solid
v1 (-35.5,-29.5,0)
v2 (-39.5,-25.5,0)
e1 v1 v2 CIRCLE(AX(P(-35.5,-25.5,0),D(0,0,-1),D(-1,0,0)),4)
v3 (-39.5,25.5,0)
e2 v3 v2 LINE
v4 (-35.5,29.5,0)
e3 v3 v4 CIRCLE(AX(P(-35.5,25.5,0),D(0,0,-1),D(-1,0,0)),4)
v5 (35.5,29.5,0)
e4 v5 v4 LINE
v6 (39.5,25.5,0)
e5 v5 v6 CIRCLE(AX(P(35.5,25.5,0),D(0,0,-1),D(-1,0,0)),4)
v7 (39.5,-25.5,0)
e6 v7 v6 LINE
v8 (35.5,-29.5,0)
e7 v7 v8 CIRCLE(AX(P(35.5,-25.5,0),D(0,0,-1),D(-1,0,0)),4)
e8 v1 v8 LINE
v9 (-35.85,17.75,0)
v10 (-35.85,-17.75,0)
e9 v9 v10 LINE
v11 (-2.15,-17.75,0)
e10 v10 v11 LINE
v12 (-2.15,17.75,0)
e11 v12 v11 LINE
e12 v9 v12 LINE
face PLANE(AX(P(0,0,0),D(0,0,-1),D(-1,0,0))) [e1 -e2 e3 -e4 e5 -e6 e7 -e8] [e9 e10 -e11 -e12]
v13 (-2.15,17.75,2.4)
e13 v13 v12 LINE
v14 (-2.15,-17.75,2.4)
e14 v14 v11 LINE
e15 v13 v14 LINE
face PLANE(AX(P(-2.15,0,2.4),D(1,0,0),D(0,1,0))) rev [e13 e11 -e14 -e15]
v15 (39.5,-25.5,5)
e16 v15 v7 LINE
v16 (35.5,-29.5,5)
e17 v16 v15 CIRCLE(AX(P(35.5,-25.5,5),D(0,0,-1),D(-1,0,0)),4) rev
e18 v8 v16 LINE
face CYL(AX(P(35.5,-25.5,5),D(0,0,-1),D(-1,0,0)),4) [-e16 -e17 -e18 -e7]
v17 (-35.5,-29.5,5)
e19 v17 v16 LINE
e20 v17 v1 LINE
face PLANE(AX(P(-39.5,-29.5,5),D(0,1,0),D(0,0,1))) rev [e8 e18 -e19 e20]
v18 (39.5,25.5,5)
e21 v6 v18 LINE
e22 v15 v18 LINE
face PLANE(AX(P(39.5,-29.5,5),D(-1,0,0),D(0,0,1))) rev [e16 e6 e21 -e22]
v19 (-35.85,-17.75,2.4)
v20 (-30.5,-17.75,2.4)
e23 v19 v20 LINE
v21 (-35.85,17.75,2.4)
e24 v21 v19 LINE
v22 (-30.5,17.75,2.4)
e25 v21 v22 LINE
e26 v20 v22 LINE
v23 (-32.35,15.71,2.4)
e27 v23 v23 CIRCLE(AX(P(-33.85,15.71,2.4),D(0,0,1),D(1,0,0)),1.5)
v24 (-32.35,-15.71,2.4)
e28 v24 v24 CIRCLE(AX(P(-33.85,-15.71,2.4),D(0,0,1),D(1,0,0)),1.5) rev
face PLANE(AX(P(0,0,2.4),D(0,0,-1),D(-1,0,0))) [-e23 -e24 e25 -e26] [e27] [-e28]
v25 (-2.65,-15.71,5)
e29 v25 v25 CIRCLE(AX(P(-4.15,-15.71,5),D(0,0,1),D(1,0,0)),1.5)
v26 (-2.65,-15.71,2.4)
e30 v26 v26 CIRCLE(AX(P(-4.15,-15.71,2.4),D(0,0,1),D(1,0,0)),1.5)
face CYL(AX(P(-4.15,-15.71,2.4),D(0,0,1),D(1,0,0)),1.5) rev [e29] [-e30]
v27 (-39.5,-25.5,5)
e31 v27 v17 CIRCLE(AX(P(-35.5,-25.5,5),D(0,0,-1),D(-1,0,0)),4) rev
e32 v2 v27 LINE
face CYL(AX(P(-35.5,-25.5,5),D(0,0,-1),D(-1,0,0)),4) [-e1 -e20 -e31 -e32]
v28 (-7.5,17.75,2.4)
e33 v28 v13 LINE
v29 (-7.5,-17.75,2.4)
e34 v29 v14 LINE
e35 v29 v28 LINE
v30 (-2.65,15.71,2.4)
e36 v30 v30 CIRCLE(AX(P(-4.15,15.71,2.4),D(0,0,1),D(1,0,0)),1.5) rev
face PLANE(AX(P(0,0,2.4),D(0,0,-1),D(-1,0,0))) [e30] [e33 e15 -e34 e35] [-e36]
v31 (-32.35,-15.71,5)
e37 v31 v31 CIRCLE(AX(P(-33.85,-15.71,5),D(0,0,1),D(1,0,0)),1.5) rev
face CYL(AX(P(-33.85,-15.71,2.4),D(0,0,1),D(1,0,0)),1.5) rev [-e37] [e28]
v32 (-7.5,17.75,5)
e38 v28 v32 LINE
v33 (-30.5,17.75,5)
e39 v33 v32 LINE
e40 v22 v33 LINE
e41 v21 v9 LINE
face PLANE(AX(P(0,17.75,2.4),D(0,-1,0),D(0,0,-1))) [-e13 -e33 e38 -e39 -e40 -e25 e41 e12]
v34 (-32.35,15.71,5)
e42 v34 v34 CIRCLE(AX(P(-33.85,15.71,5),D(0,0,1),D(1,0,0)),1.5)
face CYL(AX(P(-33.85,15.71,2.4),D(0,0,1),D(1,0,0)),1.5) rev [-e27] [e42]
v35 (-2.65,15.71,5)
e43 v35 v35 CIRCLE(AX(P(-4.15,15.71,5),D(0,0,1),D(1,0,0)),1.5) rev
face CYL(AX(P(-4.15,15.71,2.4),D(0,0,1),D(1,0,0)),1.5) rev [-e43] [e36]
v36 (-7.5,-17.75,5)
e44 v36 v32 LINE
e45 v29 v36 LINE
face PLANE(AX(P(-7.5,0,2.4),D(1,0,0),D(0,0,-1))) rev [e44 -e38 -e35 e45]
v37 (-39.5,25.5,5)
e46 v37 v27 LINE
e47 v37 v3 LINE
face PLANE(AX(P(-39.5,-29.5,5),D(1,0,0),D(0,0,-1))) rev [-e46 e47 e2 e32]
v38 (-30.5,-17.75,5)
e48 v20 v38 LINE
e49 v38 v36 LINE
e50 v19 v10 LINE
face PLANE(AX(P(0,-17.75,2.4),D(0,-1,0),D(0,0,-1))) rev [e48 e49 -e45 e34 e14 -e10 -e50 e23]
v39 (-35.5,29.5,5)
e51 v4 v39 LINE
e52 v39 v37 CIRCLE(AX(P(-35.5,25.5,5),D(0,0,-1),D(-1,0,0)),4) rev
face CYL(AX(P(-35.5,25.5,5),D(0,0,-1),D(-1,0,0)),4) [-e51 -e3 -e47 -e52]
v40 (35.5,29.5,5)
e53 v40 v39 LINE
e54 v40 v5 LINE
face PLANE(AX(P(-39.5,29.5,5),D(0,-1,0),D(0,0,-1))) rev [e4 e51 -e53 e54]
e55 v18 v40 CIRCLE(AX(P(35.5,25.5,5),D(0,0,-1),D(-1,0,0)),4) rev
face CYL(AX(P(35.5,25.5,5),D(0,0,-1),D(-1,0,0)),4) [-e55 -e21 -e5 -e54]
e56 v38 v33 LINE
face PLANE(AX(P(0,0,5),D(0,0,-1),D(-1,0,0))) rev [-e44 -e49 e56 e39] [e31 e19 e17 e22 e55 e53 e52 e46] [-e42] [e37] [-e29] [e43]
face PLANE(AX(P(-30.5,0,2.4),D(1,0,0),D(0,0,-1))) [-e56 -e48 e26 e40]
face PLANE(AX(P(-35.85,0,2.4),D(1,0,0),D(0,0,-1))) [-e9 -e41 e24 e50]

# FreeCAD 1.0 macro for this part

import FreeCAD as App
import Part
import Sketcher
Q = App.Units.Quantity


def edges_at(feature, points):
    """Names of the edges that pass closest to the given points."""
    edges = feature.Shape.Edges
    near = lambda p: min(range(len(edges)), key=lambda i: edges[i].distToShape(Part.Vertex(*p))[0])
    return sorted({f"Edge{near(p) + 1}" for p in points})


def add_polygon(sketch, points):
    """Adds a closed chain of lines whose ends are joined by coincident constraints."""
    first, n = sketch.GeometryCount, len(points)
    for a, b in zip(points, points[1:] + points[:1]):
        sketch.addGeometry(Part.LineSegment(App.Vector(*a, 0), App.Vector(*b, 0)), False)
    for i in range(n):
        sketch.addConstraint(Sketcher.Constraint("Coincident", first + i, 2, first + (i + 1) % n, 1))

doc = App.newDocument("Part")
body = doc.addObject("PartDesign::Body", "Body")

# Sketch on XY plane
sketch1 = body.newObject("Sketcher::SketchObject", "Sketch")
sketch1.AttachmentSupport = (doc.getObject("XY_Plane"), [""])
sketch1.MapMode = "FlatFace"
add_polygon(sketch1, [(-40, 30), (-40, -30), (40, -30), (40, 30)])  # lines 0-3
sketch1.addConstraint([
    Sketcher.Constraint("Vertical", 0),
    Sketcher.Constraint("Horizontal", 1),
    Sketcher.Constraint("Vertical", 2),
    Sketcher.Constraint("Horizontal", 3),
    Sketcher.Constraint("Symmetric", 0, 2, 2, 2, -1, 1),
    Sketcher.Constraint("DistanceX", 1, 1, 1, 2, Q("79 mm")),
    Sketcher.Constraint("DistanceY", 0, 2, 0, 1, Q("59 mm")),
])
pad1 = body.newObject("PartDesign::Pad", "Pad")
pad1.Profile = sketch1
pad1.Length = 5

# Sketch on XY plane
sketch2 = body.newObject("Sketcher::SketchObject", "Sketch001")
sketch2.AttachmentSupport = (doc.getObject("XY_Plane"), [""])
sketch2.MapMode = "FlatFace"
sketch2.AttachmentOffset = App.Placement(App.Vector(0, 0, 5), App.Rotation())
sketch2.addGeometry(Part.Circle(App.Vector(-4.2, 15.7, 0), App.Vector(0, 0, 1), 1.5), False)  # 0
sketch2.addGeometry(Part.Circle(App.Vector(-4.2, -15.7, 0), App.Vector(0, 0, 1), 1.5), False)  # 1
sketch2.addGeometry(Part.Circle(App.Vector(-33.9, -15.7, 0), App.Vector(0, 0, 1), 1.5), False)  # 2
sketch2.addGeometry(Part.Circle(App.Vector(-33.9, 15.7, 0), App.Vector(0, 0, 1), 1.5), False)  # 3
add_polygon(sketch2, [(-30.5, -17.8), (-7.5, -17.8), (-7.5, 17.8), (-30.5, 17.8)])  # lines 4-7
sketch2.addConstraint([
    Sketcher.Constraint("Horizontal", 4),
    Sketcher.Constraint("Vertical", 5),
    Sketcher.Constraint("Horizontal", 6),
    Sketcher.Constraint("Vertical", 7),
    Sketcher.Constraint("Equal", 0, 1),
    Sketcher.Constraint("Equal", 1, 2),
    Sketcher.Constraint("Equal", 2, 3),
    Sketcher.Constraint("Symmetric", 0, 3, 1, 3, -1),
    Sketcher.Constraint("Symmetric", 2, 3, 3, 3, -1),
    Sketcher.Constraint("Horizontal", 1, 3, 2, 3),
    Sketcher.Constraint("Diameter", 0, Q("3 mm")),
    Sketcher.Constraint("DistanceX", 4, 1, 4, 2, Q("23 mm")),
    Sketcher.Constraint("DistanceY", 5, 1, 5, 2, Q("35.5 mm")),
    Sketcher.Constraint("DistanceX", 4, 2, -1, 1, Q("7.5 mm")),
    Sketcher.Constraint("DistanceX", 2, 3, 1, 3, Q("29.7 mm")),
    Sketcher.Constraint("DistanceX", 0, 3, -1, 1, Q("4.15 mm")),
    Sketcher.Constraint("DistanceY", -1, 1, 0, 3, Q("15.71 mm")),
    Sketcher.Constraint("DistanceY", 4, 2, -1, 1, Q("17.75 mm")),
])
pocket1 = body.newObject("PartDesign::Pocket", "Pocket")
pocket1.Profile = sketch2
pocket1.Length = 2.6

# Sketch on XY plane
sketch3 = body.newObject("Sketcher::SketchObject", "Sketch002")
sketch3.AttachmentSupport = (doc.getObject("XY_Plane"), [""])
sketch3.MapMode = "FlatFace"
add_polygon(sketch3, [(-2, 18), (-2, -18), (-36, -18), (-36, 18)])  # lines 0-3
sketch3.addConstraint([
    Sketcher.Constraint("Vertical", 0),
    Sketcher.Constraint("Horizontal", 1),
    Sketcher.Constraint("Vertical", 2),
    Sketcher.Constraint("Horizontal", 3),
    Sketcher.Constraint("DistanceX", 1, 2, 1, 1, Q("33.7 mm")),
    Sketcher.Constraint("DistanceY", 0, 2, 0, 1, Q("35.5 mm")),
    Sketcher.Constraint("DistanceX", 0, 2, -1, 1, Q("2.15 mm")),
    Sketcher.Constraint("DistanceY", 0, 2, -1, 1, Q("17.75 mm")),
])
pocket2 = body.newObject("PartDesign::Pocket", "Pocket001")
pocket2.Profile = sketch3
pocket2.Length = 2.4
pocket2.Reversed = True
doc.recompute()

fillet = body.newObject("PartDesign::Fillet", "Fillet")
fillet.Base = (pocket2, edges_at(pocket2, [
    (39.5, -29.5, 2.5),
    (-39.5, -29.5, 2.5),
    (-39.5, 29.5, 2.5),
    (39.5, 29.5, 2.5),
]))
fillet.Radius = 4

doc.recompute()
